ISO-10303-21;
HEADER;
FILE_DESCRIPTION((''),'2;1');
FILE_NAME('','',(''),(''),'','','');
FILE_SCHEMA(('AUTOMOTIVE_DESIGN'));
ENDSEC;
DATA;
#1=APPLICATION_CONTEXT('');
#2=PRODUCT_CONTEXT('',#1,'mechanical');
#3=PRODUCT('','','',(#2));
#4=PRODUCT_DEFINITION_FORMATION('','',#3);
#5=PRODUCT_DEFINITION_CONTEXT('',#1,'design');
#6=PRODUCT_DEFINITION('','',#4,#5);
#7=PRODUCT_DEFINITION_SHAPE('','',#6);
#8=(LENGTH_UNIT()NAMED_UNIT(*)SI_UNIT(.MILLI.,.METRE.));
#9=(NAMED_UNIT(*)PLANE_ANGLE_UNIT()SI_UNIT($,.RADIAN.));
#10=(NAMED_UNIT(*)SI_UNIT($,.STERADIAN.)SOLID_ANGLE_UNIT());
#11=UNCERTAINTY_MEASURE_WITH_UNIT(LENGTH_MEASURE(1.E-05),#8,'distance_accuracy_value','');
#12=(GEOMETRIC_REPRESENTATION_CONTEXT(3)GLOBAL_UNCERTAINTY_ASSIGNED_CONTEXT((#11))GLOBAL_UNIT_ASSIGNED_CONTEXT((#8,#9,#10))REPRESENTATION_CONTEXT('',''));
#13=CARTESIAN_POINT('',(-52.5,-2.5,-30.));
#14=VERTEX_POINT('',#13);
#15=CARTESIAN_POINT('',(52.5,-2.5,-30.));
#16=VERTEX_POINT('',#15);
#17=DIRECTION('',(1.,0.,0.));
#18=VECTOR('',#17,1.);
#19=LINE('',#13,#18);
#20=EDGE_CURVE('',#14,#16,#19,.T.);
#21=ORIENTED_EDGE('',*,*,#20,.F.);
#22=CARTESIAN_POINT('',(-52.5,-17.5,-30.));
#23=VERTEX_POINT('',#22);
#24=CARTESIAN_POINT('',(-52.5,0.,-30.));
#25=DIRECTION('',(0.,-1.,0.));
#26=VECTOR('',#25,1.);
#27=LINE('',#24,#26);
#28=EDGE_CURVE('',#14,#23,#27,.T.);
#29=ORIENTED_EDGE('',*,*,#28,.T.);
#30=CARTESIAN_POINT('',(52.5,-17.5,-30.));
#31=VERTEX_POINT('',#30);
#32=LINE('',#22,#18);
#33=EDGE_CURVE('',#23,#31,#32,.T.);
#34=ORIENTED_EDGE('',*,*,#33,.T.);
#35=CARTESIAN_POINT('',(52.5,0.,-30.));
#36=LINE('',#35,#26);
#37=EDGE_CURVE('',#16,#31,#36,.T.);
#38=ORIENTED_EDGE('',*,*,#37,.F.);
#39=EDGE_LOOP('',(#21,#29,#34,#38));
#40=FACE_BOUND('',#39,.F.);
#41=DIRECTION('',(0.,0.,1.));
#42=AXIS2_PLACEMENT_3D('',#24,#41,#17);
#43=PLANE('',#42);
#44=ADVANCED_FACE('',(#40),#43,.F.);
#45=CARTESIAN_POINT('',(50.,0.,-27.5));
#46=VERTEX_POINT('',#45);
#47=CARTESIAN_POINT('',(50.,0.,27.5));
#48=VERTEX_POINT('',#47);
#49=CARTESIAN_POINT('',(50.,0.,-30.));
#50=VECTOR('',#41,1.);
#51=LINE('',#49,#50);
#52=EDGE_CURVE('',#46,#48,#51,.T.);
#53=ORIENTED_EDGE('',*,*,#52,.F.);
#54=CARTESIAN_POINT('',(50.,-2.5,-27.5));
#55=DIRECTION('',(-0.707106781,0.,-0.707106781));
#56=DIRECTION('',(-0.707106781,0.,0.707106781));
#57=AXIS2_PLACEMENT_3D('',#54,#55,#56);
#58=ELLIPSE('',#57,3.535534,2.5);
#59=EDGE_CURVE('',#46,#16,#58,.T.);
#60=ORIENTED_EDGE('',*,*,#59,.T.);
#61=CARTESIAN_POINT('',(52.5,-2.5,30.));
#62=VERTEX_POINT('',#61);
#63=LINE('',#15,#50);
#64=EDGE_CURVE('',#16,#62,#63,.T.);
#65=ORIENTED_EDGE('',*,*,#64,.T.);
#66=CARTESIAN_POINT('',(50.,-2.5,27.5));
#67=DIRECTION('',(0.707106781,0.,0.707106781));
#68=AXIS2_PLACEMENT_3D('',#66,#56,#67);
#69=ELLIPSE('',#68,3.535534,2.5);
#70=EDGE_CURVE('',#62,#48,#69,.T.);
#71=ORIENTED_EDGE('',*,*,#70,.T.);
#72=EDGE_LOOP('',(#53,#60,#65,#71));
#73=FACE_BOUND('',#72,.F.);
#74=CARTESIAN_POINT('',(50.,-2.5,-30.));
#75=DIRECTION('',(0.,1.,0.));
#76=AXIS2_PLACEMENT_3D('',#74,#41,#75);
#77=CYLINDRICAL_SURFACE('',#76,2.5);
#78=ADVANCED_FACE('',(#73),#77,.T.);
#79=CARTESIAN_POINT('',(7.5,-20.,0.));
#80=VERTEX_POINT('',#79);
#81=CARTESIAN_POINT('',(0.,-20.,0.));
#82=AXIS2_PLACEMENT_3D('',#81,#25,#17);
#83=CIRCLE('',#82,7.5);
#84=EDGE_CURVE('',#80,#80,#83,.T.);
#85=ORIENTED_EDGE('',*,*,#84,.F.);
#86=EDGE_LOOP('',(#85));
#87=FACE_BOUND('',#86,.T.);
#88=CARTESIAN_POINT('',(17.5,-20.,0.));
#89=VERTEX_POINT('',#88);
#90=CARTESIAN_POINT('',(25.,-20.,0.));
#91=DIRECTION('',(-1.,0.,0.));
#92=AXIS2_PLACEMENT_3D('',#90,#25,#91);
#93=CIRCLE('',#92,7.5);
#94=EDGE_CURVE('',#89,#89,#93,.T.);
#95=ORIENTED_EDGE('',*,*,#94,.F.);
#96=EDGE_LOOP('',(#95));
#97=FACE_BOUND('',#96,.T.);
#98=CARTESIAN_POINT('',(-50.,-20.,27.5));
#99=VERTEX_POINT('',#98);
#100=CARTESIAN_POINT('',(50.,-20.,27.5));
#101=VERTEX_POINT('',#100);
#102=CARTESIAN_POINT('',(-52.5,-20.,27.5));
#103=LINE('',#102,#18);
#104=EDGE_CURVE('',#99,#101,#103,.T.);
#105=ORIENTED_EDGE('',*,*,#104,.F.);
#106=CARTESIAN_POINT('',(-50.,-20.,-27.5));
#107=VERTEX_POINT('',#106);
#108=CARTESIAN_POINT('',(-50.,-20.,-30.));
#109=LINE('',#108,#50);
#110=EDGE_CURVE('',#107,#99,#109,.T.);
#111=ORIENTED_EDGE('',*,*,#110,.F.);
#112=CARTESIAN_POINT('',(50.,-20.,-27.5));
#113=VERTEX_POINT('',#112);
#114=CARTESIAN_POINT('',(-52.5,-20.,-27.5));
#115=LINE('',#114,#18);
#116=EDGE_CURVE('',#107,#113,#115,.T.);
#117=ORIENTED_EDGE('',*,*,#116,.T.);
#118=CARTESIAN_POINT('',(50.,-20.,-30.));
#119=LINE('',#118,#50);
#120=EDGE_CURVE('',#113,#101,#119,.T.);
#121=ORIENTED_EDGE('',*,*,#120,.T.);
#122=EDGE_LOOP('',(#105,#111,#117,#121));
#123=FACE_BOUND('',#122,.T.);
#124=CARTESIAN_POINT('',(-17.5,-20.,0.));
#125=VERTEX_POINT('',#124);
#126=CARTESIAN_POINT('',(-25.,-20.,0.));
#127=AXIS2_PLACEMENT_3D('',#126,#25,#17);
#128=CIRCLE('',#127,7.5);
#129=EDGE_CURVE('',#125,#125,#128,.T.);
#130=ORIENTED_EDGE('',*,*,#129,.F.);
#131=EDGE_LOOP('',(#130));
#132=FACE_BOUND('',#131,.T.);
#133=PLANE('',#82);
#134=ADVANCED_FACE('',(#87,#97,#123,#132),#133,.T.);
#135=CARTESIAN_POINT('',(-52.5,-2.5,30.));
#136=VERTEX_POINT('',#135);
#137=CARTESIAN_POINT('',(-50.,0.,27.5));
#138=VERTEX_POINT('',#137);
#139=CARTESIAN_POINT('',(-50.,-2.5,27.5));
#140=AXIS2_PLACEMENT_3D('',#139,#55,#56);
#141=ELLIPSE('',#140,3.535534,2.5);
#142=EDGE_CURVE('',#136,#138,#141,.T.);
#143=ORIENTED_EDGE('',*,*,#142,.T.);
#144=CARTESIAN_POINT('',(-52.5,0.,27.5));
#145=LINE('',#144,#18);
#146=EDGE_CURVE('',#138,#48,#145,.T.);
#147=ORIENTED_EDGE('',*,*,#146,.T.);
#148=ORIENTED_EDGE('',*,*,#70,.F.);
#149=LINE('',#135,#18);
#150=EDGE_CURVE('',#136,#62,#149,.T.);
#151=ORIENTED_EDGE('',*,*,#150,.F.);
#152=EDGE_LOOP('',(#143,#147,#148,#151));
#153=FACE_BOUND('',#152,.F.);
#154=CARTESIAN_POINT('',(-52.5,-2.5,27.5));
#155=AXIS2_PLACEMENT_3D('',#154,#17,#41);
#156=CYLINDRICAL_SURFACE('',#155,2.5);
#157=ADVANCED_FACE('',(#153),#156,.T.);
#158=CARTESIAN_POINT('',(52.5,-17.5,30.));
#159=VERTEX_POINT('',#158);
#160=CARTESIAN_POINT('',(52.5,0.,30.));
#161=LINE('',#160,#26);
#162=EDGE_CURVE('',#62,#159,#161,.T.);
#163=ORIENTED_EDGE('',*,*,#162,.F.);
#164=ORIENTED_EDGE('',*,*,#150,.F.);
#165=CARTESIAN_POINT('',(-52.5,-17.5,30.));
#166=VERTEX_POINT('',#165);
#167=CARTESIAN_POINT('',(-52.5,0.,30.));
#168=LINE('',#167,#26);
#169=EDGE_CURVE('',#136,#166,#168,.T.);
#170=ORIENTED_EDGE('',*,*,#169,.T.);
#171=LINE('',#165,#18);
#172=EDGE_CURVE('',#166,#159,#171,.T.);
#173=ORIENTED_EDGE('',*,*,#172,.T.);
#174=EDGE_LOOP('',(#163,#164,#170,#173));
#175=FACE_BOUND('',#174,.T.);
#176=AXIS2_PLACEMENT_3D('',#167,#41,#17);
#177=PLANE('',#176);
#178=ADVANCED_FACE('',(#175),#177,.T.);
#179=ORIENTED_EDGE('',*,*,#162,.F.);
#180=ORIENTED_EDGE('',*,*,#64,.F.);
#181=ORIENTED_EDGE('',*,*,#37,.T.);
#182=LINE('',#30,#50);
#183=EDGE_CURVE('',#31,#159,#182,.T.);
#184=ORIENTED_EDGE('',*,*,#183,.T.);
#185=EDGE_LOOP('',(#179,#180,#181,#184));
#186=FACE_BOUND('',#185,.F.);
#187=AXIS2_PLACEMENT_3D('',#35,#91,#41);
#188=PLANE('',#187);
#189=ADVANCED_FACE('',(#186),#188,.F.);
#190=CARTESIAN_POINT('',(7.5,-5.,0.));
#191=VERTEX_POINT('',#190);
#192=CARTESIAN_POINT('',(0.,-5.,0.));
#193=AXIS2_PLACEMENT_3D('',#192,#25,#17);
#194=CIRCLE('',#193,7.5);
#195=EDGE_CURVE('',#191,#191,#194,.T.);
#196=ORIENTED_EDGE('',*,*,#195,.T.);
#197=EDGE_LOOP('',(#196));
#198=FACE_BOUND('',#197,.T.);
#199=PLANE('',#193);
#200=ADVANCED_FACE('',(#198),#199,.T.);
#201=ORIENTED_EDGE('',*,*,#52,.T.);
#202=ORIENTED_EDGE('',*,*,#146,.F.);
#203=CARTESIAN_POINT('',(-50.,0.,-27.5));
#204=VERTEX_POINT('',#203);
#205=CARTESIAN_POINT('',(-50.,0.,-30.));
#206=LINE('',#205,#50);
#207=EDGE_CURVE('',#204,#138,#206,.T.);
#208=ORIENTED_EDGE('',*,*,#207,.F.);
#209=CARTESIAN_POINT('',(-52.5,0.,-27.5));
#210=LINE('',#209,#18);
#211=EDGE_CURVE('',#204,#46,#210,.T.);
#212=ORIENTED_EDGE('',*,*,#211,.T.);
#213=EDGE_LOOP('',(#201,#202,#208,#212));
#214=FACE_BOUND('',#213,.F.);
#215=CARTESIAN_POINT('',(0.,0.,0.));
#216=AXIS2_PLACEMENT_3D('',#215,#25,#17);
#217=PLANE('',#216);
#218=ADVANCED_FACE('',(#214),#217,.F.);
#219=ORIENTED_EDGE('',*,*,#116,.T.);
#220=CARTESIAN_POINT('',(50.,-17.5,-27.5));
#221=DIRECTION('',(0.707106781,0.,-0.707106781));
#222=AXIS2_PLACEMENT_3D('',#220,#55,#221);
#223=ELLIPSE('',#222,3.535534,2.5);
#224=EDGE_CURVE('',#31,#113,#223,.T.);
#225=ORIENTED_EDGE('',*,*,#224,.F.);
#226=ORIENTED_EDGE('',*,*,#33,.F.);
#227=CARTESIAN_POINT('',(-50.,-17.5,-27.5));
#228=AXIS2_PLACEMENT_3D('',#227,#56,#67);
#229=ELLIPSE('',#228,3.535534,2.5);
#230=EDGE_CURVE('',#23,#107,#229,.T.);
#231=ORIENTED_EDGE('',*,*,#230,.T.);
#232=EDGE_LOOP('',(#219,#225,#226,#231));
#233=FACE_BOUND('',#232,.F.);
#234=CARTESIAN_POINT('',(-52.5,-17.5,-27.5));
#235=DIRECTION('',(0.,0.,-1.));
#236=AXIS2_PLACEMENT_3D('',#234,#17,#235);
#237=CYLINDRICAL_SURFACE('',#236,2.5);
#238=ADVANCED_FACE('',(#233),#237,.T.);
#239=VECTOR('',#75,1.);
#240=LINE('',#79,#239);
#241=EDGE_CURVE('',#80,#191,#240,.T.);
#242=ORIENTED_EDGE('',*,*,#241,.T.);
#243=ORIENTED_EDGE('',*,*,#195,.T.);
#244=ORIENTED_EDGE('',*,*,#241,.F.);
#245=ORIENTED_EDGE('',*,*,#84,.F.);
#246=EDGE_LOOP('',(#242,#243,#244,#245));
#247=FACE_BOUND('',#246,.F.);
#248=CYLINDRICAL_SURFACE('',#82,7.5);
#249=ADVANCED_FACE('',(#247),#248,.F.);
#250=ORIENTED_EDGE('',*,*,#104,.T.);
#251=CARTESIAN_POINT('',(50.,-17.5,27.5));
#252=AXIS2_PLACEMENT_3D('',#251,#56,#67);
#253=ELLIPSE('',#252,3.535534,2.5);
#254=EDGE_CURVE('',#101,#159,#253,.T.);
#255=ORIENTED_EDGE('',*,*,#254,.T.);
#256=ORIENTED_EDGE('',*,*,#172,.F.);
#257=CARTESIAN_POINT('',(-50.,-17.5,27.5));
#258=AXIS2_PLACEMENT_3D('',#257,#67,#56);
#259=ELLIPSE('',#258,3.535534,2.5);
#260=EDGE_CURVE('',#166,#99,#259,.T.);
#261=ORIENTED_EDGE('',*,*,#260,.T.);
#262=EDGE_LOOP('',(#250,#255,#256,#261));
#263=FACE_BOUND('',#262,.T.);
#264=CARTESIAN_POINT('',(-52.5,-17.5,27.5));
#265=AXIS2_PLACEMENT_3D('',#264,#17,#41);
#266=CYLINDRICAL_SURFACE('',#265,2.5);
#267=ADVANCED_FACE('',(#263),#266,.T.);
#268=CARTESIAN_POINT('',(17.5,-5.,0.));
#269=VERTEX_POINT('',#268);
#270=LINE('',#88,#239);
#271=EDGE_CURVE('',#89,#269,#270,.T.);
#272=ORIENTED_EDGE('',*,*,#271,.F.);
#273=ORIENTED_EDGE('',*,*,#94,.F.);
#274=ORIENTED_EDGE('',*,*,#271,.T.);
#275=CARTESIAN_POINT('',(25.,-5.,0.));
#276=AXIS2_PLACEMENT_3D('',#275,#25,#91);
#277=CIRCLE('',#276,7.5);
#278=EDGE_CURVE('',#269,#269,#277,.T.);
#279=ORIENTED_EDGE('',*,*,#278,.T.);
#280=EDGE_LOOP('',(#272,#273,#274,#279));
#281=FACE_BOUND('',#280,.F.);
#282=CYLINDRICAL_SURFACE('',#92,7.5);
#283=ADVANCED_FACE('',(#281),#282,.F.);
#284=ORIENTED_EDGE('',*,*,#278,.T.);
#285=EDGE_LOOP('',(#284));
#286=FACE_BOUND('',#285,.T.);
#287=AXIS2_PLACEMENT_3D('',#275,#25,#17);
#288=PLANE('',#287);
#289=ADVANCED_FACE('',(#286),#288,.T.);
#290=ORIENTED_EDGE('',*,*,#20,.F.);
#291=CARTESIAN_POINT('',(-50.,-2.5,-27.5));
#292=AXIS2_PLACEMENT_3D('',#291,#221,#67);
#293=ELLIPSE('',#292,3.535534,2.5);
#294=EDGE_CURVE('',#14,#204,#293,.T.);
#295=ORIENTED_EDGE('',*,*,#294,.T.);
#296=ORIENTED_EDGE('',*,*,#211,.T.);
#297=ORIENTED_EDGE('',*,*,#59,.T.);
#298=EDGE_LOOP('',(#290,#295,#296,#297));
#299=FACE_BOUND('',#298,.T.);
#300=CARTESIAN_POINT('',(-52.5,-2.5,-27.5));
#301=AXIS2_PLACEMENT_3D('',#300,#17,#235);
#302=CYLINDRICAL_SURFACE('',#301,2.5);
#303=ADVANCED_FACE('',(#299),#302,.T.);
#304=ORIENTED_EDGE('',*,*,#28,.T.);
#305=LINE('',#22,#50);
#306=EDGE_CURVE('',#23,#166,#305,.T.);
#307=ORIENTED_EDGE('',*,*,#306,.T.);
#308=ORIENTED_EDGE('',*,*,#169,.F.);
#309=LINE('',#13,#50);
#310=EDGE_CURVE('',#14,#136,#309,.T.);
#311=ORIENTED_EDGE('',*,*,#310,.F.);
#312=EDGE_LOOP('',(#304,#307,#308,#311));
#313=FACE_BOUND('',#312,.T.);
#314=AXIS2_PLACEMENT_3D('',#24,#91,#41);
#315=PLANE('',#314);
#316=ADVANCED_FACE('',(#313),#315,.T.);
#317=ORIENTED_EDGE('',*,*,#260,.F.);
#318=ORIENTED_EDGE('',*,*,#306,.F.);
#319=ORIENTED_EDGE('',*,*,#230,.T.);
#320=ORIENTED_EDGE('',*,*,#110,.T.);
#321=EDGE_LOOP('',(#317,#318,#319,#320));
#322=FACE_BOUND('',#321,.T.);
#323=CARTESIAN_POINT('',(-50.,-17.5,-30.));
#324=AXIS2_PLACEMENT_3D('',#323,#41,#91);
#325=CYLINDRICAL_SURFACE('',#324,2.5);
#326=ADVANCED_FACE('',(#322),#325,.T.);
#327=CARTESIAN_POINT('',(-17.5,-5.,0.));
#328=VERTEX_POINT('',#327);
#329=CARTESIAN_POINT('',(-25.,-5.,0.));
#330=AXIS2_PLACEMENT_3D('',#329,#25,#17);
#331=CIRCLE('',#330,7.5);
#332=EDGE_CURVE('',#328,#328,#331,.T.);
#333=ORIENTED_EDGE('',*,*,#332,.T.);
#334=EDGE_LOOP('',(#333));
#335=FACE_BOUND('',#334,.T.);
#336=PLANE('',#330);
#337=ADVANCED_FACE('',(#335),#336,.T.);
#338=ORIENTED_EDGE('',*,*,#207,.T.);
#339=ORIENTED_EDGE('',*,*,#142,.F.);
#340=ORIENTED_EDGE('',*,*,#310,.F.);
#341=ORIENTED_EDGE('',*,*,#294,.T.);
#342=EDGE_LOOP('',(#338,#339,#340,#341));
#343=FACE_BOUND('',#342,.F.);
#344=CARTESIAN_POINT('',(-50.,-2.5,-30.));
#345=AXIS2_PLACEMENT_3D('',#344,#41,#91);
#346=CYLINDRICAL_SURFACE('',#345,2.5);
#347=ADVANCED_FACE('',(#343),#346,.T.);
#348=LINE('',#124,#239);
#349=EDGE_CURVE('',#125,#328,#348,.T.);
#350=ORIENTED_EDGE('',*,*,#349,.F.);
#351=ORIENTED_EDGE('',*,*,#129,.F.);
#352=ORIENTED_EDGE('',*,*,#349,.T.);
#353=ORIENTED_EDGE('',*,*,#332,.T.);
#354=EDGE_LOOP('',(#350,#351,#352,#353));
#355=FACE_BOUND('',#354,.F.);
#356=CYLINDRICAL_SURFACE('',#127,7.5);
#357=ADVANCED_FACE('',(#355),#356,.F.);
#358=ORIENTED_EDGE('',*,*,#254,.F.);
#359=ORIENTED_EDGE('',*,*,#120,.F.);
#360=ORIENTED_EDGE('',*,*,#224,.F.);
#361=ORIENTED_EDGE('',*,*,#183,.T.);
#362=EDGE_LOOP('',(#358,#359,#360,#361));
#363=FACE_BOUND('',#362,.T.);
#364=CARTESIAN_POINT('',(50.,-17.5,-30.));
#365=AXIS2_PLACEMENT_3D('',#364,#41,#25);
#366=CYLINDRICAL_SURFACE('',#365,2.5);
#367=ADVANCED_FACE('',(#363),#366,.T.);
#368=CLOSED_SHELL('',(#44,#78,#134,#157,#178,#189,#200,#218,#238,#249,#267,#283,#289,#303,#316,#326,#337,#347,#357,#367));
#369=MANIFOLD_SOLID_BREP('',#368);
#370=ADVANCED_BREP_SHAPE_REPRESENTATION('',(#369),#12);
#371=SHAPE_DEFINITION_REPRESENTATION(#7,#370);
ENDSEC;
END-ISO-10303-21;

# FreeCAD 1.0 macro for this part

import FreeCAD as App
import Part
import Sketcher

V = App.Vector
Q = App.Units.Quantity


def edges_at(feature, points):
    """Names of the edges that pass closest to the given points."""
    edges = feature.Shape.Edges
    near = lambda p: min(range(len(edges)), key=lambda i: edges[i].distToShape(Part.Vertex(*p))[0])
    return sorted({f"Edge{near(p) + 1}" for p in points})

doc = App.newDocument("Part")
body = doc.addObject("PartDesign::Body", "Body")

# Sketch on XZ plane
sketch1 = body.newObject("Sketcher::SketchObject", "Sketch")
sketch1.AttachmentSupport = (doc.getObject("XZ_Plane"), [""])
sketch1.MapMode = "FlatFace"
sketch1.addGeometry(Part.LineSegment(V(-52.5, 30, 0), V(-52.5, -30, 0)), False)
sketch1.addGeometry(Part.LineSegment(V(-52.5, -30, 0), V(52.5, -30, 0)), False)
sketch1.addGeometry(Part.LineSegment(V(52.5, -30, 0), V(52.5, 30, 0)), False)
sketch1.addGeometry(Part.LineSegment(V(52.5, 30, 0), V(-52.5, 30, 0)), False)
sketch1.addConstraint(Sketcher.Constraint("Coincident", 0, 2, 1, 1))
sketch1.addConstraint(Sketcher.Constraint("Coincident", 1, 2, 2, 1))
sketch1.addConstraint(Sketcher.Constraint("Coincident", 2, 2, 3, 1))
sketch1.addConstraint(Sketcher.Constraint("Coincident", 3, 2, 0, 1))
sketch1.addConstraint(Sketcher.Constraint("Vertical", 0))
sketch1.addConstraint(Sketcher.Constraint("Horizontal", 1))
sketch1.addConstraint(Sketcher.Constraint("Vertical", 2))
sketch1.addConstraint(Sketcher.Constraint("Horizontal", 3))
sketch1.addConstraint(Sketcher.Constraint("Symmetric", 0, 2, 2, 2, -1, 1))
sketch1.addConstraint(Sketcher.Constraint("DistanceX", 1, 1, 1, 2, Q("105 mm")))
sketch1.addConstraint(Sketcher.Constraint("DistanceY", 0, 2, 0, 1, Q("60 mm")))
pad1 = body.newObject("PartDesign::Pad", "Pad")
pad1.Profile = sketch1
pad1.Length = 20

# Sketch on XZ plane
sketch2 = body.newObject("Sketcher::SketchObject", "Sketch001")
sketch2.AttachmentSupport = (doc.getObject("XZ_Plane"), [""])
sketch2.MapMode = "FlatFace"
sketch2.AttachmentOffset = App.Placement(V(0, 0, 20), App.Rotation())
sketch2.addGeometry(Part.Circle(V(0, 0, 0), V(0, 0, 1), 7.5), False)
sketch2.addGeometry(Part.Circle(V(-25, 0, 0), V(0, 0, 1), 7.5), False)
sketch2.addGeometry(Part.Circle(V(25, 0, 0), V(0, 0, 1), 7.5), False)
sketch2.addConstraint(Sketcher.Constraint("Coincident", 0, 3, -1, 1))
sketch2.addConstraint(Sketcher.Constraint("Equal", 0, 1))
sketch2.addConstraint(Sketcher.Constraint("Equal", 1, 2))
sketch2.addConstraint(Sketcher.Constraint("Symmetric", 1, 3, 2, 3, -1, 1))
sketch2.addConstraint(Sketcher.Constraint("PointOnObject", 1, 3, -1))
sketch2.addConstraint(Sketcher.Constraint("Diameter", 0, Q("15 mm")))
sketch2.addConstraint(Sketcher.Constraint("DistanceX", 1, 3, -1, 1, Q("25 mm")))
pocket1 = body.newObject("PartDesign::Pocket", "Pocket")
pocket1.Profile = sketch2
pocket1.Length = 15
doc.recompute()

fillet = body.newObject("PartDesign::Fillet", "Fillet")
fillet.Base = (pocket1, edges_at(pocket1, [
    (-52.5, -20, 0),
    (0, -20, -30),
    (52.5, -20, 0),
    (0, -20, 30),
    (-52.5, 0, 0),
    (0, 0, 30),
    (52.5, 0, 0),
    (0, 0, -30),
]))
fillet.Radius = 2.5

doc.recompute()
